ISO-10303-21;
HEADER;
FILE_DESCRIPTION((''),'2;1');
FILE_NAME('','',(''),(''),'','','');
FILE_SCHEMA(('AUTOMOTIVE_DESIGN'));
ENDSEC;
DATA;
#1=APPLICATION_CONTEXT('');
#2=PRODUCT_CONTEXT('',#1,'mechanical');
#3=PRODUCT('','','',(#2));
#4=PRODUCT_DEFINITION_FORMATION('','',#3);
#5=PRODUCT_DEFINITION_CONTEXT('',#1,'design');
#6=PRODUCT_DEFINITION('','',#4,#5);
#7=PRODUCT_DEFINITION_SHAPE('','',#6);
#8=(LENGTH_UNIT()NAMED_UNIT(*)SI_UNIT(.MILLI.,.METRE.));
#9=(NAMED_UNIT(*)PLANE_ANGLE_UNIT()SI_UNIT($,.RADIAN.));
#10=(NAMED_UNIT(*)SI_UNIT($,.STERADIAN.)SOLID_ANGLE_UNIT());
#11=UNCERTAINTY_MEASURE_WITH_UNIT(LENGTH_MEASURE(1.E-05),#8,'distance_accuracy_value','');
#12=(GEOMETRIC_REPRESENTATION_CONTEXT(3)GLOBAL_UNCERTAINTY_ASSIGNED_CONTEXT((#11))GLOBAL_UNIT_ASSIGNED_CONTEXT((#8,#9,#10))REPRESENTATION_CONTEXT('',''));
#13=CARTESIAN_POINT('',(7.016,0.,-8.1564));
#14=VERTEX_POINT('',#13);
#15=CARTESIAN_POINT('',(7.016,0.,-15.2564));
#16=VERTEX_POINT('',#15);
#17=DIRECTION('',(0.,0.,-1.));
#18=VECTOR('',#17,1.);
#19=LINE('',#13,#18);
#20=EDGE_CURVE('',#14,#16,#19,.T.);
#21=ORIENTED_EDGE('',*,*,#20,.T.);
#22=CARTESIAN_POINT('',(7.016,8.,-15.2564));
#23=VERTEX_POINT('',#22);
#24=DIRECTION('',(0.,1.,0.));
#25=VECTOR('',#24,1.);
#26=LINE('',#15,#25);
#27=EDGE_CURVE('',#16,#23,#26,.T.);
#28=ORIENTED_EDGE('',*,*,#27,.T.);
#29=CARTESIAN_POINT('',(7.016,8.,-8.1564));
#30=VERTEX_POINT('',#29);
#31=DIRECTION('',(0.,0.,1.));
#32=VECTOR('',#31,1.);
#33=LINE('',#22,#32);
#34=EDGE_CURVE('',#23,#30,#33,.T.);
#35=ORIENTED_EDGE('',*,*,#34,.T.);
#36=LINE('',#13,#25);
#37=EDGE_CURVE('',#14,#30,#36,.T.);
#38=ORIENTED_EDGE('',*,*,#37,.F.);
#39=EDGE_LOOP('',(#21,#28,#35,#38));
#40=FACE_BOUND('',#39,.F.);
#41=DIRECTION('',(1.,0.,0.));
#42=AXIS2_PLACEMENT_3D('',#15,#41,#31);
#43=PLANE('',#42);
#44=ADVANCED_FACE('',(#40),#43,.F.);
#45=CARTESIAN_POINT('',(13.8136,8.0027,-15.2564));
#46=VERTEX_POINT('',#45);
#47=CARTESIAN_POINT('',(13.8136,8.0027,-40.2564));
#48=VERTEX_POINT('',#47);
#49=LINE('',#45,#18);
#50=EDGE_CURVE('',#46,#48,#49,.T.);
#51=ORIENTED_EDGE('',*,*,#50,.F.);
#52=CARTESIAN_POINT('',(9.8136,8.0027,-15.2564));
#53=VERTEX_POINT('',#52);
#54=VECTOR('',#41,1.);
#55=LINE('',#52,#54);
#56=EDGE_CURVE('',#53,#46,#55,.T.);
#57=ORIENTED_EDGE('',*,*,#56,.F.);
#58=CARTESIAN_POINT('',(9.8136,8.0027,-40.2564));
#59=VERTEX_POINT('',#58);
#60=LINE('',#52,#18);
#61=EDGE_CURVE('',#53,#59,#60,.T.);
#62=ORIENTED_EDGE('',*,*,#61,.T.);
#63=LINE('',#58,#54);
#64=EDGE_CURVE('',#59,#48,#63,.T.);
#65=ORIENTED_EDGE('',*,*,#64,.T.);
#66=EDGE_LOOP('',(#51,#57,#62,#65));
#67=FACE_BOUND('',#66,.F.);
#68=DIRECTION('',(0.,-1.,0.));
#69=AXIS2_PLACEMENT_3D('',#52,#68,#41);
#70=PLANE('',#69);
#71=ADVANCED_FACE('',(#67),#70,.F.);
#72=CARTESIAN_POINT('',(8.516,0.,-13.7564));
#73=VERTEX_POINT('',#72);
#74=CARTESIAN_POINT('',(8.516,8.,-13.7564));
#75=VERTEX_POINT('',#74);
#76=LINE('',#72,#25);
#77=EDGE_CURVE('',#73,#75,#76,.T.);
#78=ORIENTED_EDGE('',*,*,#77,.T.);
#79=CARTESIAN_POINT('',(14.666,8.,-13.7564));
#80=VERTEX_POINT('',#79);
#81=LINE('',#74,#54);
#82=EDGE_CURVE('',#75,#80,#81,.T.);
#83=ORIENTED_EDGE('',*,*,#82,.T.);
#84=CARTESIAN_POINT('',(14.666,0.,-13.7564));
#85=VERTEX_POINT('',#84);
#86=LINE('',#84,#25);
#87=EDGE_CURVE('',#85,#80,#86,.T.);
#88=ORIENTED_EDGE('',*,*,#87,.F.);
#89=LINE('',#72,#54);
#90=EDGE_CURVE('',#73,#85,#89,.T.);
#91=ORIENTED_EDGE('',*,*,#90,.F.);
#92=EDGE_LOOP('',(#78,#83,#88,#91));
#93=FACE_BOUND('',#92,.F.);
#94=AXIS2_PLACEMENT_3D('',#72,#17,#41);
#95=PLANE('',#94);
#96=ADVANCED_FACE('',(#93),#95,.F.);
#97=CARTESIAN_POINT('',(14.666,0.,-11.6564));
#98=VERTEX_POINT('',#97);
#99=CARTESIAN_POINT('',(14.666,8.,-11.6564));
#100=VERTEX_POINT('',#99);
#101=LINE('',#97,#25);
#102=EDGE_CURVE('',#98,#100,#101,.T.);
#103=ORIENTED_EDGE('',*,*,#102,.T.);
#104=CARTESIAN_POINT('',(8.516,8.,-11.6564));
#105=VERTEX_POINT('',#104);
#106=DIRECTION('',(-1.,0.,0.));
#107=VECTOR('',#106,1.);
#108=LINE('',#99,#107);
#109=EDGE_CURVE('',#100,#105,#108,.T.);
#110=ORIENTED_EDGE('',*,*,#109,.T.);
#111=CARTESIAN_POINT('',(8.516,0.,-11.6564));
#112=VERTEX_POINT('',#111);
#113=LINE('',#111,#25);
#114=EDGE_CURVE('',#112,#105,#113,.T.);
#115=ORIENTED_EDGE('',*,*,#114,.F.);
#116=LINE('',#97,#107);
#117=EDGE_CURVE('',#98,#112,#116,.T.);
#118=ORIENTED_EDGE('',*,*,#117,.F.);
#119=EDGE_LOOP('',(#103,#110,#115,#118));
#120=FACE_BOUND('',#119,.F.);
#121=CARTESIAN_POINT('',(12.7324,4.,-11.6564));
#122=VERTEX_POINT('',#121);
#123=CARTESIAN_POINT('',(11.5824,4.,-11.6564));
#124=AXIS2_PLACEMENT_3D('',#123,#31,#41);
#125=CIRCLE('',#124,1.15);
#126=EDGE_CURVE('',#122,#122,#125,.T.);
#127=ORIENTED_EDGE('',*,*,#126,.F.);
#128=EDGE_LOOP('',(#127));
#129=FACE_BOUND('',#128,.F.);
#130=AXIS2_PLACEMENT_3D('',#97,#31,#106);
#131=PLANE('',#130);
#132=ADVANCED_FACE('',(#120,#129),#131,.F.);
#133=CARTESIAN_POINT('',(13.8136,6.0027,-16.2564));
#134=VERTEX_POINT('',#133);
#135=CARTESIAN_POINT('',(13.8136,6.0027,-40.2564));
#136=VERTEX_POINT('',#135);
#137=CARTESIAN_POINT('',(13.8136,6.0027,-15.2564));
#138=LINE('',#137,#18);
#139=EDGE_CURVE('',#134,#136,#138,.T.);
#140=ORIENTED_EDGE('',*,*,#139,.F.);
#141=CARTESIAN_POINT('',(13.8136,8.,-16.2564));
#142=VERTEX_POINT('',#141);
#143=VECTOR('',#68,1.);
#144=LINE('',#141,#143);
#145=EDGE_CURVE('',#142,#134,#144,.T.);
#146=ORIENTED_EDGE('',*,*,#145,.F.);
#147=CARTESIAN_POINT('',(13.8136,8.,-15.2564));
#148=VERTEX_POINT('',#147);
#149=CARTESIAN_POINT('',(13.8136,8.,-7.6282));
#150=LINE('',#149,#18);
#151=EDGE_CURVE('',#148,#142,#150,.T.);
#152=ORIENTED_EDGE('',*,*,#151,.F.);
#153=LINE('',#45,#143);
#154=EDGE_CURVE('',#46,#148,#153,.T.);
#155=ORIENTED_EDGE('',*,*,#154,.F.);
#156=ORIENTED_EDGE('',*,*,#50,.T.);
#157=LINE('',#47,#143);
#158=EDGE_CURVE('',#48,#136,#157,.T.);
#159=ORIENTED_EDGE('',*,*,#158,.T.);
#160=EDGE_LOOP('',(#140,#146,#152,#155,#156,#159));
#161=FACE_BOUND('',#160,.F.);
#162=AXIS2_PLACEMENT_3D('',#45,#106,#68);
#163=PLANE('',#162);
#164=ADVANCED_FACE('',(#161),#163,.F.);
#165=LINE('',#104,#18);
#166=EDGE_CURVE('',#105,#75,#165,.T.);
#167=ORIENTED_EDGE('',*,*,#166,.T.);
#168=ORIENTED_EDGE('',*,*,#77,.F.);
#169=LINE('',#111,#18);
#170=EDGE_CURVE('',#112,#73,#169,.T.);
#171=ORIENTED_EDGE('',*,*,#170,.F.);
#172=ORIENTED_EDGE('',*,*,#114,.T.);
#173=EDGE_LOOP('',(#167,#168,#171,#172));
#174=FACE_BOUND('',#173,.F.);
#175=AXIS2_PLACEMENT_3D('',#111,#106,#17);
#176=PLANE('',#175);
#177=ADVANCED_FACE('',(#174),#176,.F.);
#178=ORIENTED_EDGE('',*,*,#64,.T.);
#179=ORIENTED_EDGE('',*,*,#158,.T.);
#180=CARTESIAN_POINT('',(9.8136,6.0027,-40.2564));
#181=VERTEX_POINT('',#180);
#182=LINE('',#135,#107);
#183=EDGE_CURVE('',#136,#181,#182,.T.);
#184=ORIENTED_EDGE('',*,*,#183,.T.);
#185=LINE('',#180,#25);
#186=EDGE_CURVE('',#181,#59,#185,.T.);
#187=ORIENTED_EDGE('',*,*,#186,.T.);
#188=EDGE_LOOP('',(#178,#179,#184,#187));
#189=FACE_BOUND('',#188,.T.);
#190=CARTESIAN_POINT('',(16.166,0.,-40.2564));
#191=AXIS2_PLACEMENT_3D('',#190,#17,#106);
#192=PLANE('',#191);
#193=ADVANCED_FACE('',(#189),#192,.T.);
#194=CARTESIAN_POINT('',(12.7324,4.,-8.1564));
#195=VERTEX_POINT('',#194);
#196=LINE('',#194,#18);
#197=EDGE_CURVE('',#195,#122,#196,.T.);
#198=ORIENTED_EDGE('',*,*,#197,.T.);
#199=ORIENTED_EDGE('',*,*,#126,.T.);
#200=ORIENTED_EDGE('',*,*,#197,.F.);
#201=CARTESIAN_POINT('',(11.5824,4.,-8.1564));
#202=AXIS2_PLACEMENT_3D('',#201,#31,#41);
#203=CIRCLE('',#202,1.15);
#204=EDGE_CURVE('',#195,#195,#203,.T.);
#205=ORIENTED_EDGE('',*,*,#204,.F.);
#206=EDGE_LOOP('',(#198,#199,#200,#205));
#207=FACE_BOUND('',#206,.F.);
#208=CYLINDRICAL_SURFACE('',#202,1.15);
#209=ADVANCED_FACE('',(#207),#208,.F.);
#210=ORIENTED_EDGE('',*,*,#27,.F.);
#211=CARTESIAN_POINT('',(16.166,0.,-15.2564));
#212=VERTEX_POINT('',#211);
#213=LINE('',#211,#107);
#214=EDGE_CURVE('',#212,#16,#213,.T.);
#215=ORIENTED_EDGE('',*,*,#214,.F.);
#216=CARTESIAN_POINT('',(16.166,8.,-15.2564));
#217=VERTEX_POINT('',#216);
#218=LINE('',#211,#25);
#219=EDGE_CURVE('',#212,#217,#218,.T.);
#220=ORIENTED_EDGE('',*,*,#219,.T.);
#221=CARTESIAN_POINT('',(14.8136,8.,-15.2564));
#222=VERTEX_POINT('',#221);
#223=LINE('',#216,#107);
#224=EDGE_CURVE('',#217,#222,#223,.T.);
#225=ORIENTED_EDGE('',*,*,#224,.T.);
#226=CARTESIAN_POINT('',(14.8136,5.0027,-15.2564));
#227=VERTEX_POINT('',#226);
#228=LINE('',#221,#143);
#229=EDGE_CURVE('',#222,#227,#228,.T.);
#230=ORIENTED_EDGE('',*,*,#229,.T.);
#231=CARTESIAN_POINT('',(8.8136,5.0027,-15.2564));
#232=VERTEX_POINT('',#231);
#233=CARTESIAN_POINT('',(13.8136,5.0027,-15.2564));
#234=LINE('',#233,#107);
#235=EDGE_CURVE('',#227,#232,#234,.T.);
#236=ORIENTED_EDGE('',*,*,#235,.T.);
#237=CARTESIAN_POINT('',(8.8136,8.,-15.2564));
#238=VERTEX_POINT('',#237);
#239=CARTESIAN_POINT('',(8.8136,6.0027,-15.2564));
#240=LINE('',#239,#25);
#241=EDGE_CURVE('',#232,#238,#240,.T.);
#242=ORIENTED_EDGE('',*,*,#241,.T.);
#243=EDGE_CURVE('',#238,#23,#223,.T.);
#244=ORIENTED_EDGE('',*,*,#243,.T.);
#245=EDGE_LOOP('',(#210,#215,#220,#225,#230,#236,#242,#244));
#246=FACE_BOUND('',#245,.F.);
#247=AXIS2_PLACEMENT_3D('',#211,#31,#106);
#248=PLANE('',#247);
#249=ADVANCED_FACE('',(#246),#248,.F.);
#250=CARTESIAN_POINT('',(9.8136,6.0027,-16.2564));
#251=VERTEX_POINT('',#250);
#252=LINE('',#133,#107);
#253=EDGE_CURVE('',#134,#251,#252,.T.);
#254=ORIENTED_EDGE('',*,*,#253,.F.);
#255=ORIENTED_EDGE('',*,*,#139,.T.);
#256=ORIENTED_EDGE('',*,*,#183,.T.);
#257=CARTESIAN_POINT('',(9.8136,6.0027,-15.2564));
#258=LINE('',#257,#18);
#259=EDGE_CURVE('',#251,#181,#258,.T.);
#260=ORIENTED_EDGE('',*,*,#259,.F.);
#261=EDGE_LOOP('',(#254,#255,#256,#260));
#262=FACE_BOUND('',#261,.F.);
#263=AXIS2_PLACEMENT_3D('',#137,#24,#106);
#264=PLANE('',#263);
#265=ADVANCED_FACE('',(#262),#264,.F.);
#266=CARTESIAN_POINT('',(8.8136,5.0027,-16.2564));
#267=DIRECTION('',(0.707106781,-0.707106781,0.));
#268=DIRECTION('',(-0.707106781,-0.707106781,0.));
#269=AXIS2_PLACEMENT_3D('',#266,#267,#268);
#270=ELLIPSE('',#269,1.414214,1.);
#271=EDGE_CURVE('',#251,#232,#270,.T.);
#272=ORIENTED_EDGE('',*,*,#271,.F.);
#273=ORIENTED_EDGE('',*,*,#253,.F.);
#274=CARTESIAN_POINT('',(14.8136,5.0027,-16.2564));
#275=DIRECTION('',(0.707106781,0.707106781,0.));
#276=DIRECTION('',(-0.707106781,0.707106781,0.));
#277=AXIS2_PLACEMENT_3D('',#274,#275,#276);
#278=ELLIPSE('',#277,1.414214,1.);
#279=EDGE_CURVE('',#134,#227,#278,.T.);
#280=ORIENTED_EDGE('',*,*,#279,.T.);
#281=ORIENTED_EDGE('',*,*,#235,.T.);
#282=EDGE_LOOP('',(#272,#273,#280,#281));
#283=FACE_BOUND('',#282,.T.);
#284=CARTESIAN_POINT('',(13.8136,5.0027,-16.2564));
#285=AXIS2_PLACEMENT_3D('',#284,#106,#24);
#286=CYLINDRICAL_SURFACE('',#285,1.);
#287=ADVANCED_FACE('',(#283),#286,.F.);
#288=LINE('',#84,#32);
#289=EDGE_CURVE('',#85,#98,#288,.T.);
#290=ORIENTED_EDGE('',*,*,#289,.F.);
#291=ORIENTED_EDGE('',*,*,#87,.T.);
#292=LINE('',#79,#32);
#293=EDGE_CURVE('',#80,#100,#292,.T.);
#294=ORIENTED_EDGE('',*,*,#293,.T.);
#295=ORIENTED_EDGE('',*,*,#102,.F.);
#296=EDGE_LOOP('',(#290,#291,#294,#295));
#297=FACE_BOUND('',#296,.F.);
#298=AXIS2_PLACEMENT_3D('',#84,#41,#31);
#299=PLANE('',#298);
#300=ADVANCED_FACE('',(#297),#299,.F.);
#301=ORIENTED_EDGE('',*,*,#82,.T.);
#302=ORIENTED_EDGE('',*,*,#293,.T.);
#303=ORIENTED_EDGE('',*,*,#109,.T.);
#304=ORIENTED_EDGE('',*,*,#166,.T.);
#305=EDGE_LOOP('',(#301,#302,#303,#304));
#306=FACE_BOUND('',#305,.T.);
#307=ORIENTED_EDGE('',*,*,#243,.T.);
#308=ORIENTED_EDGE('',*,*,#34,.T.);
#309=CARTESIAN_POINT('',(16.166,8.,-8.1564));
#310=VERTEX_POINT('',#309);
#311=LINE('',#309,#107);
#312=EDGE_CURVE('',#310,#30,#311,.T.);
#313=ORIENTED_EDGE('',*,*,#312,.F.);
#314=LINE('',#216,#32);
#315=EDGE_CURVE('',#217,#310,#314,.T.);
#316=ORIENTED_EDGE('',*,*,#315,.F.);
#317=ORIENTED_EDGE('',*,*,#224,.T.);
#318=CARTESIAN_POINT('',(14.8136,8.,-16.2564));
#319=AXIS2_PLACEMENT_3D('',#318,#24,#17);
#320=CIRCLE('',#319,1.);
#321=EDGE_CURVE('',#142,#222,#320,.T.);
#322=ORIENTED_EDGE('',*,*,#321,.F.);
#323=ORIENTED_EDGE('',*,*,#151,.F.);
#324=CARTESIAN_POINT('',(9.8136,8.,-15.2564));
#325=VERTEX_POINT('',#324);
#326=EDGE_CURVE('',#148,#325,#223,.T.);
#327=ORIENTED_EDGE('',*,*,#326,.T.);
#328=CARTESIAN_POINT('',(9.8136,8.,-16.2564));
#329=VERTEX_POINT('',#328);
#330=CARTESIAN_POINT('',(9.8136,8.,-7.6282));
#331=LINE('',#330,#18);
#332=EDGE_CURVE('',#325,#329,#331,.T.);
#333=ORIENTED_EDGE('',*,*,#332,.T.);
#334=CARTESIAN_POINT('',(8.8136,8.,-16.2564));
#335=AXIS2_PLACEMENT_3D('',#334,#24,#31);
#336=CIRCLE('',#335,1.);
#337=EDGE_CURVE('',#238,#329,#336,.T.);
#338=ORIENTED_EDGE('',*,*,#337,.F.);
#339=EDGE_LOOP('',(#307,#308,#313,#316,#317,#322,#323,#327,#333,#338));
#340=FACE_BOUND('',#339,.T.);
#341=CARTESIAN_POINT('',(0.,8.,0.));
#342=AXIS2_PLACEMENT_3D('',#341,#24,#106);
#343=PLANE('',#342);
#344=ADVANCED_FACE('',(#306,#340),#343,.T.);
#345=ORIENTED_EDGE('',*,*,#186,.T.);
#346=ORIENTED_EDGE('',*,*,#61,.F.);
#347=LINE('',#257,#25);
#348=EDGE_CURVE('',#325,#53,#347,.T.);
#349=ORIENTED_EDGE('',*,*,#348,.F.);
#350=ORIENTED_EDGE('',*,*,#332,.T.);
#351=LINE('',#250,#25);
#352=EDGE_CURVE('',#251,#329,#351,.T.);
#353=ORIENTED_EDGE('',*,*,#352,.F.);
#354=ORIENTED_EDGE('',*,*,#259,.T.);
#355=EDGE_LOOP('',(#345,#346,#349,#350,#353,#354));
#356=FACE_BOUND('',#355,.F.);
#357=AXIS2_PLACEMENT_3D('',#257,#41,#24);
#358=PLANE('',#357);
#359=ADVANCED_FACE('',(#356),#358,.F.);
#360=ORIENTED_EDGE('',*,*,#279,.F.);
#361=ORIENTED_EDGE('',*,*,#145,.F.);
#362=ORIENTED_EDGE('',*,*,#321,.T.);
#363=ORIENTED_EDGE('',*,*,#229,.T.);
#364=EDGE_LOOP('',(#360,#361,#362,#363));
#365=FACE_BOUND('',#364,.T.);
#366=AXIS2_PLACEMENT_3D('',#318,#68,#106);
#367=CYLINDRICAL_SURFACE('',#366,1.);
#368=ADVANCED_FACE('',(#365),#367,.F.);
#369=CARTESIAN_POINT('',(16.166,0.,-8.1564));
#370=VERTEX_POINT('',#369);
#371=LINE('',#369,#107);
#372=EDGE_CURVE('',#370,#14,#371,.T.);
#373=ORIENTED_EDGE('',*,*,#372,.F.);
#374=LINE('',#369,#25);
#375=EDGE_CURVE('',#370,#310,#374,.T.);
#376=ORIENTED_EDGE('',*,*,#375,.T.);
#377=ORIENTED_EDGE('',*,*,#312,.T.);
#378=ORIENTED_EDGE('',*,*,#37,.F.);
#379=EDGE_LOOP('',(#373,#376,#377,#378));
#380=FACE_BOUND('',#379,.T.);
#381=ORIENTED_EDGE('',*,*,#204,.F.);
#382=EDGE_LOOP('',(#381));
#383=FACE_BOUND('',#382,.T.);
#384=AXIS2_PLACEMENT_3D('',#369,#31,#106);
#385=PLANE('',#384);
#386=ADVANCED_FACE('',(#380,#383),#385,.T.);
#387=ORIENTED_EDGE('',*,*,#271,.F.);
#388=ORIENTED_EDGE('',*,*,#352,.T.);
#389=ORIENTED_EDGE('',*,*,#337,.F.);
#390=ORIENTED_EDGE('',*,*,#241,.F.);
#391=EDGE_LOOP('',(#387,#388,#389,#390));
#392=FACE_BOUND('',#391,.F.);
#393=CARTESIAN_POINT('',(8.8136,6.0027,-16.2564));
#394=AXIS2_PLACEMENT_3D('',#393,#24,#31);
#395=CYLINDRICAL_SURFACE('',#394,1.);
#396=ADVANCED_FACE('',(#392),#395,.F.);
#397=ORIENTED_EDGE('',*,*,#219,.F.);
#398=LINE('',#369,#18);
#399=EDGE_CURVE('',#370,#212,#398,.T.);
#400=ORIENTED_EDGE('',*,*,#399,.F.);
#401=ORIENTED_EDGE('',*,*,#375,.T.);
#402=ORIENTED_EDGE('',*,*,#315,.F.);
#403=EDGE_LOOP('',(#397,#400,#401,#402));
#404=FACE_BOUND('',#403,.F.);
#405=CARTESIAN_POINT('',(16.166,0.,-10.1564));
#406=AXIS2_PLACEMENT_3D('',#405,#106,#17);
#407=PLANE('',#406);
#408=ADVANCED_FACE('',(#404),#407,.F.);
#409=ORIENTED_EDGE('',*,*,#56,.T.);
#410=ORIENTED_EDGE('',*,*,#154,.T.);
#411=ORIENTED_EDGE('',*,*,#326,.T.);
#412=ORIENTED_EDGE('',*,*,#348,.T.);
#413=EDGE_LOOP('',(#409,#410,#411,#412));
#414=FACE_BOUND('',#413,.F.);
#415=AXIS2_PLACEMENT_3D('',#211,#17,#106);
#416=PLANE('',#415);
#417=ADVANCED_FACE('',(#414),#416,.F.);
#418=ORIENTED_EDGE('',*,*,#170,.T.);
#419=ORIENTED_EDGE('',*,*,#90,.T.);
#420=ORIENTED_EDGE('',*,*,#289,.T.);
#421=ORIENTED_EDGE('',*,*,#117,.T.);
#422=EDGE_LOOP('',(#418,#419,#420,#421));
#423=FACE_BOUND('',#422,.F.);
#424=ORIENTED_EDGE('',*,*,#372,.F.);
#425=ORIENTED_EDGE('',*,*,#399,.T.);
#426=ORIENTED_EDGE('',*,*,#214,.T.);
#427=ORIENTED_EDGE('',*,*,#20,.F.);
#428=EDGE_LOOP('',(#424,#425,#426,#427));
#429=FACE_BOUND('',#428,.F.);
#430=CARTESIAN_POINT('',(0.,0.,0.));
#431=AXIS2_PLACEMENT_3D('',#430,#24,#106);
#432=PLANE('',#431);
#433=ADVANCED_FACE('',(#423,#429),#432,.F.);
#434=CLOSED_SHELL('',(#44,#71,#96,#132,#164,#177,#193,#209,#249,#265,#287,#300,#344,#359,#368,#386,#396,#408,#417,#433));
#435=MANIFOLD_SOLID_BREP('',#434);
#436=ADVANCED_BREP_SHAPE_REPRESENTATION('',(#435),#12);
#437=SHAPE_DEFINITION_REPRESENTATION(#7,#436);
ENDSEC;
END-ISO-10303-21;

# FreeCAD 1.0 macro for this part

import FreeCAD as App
import Part
import Sketcher

V = App.Vector
Q = App.Units.Quantity


def edges_at(feature, points):
    """Names of the edges that pass closest to the given points."""
    edges = feature.Shape.Edges
    near = lambda p: min(range(len(edges)), key=lambda i: edges[i].distToShape(Part.Vertex(*p))[0])
    return sorted({f"Edge{near(p) + 1}" for p in points})

doc = App.newDocument("Part")
params = doc.addObject("Spreadsheet::Sheet", "Params")
for row, (alias, value) in enumerate([
    ("sketch1_height", "2.1 mm"),
    ("sketch1_width", "6.15 mm"),
    ("sketch1_height2", "7.1 mm"),
    ("pad1_length", "8 mm"),
    ("sketch2_diameter", "2.3 mm"),
    ("pocket1_length", "4 mm"),
    ("sketch3_width", "4 mm"),
    ("sketch3_height", "2 mm"),
    ("pad2_length", "25 mm"),
    ("fillet_radius", "1 mm"),
], start=1):
    params.set(f"A{row}", alias)
    params.set(f"B{row}", "=" + value)
    params.setAlias(f"B{row}", alias)

body = doc.addObject("PartDesign::Body", "Body")

# Sketch on XZ plane
sketch1 = body.newObject("Sketcher::SketchObject", "Sketch")
sketch1.AttachmentSupport = (doc.getObject("XZ_Plane"), [""])
sketch1.MapMode = "FlatFace"
sketch1.addGeometry(Part.LineSegment(V(16.166, -8.1564, 0), V(16.166, -15.2564, 0)), False)
sketch1.addGeometry(Part.LineSegment(V(16.166, -15.2564, 0), V(7.016, -15.2564, 0)), False)
sketch1.addGeometry(Part.LineSegment(V(7.016, -15.2564, 0), V(7.016, -8.1564, 0)), False)
sketch1.addGeometry(Part.LineSegment(V(7.016, -8.1564, 0), V(16.166, -8.1564, 0)), False)
sketch1.addGeometry(Part.LineSegment(V(14.666, -13.7564, 0), V(14.666, -11.6564, 0)), False)
sketch1.addGeometry(Part.LineSegment(V(14.666, -11.6564, 0), V(8.516, -11.6564, 0)), False)
sketch1.addGeometry(Part.LineSegment(V(8.516, -11.6564, 0), V(8.516, -13.7564, 0)), False)
sketch1.addGeometry(Part.LineSegment(V(8.516, -13.7564, 0), V(14.666, -13.7564, 0)), False)
sketch1.addConstraint(Sketcher.Constraint("Coincident", 0, 2, 1, 1))
sketch1.addConstraint(Sketcher.Constraint("Coincident", 1, 2, 2, 1))
sketch1.addConstraint(Sketcher.Constraint("Coincident", 2, 2, 3, 1))
sketch1.addConstraint(Sketcher.Constraint("Coincident", 3, 2, 0, 1))
sketch1.addConstraint(Sketcher.Constraint("Coincident", 4, 2, 5, 1))
sketch1.addConstraint(Sketcher.Constraint("Coincident", 5, 2, 6, 1))
sketch1.addConstraint(Sketcher.Constraint("Coincident", 6, 2, 7, 1))
sketch1.addConstraint(Sketcher.Constraint("Coincident", 7, 2, 4, 1))
sketch1.addConstraint(Sketcher.Constraint("Vertical", 0))
sketch1.addConstraint(Sketcher.Constraint("Horizontal", 1))
sketch1.addConstraint(Sketcher.Constraint("Vertical", 2))
sketch1.addConstraint(Sketcher.Constraint("Horizontal", 3))
sketch1.addConstraint(Sketcher.Constraint("Vertical", 4))
sketch1.addConstraint(Sketcher.Constraint("Horizontal", 5))
sketch1.addConstraint(Sketcher.Constraint("Vertical", 6))
sketch1.addConstraint(Sketcher.Constraint("Horizontal", 7))
sketch1.addConstraint(Sketcher.Constraint("DistanceY", 4, 1, 4, 2, Q("2.1 mm")))
sketch1.addConstraint(Sketcher.Constraint("DistanceX", 5, 2, 5, 1, Q("6.15 mm")))
sketch1.addConstraint(Sketcher.Constraint("DistanceX", 4, 2, 3, 2, Q("1.5 mm")))
sketch1.addConstraint(Sketcher.Constraint("DistanceX", 2, 2, 5, 2, Q("1.5 mm")))
sketch1.addConstraint(Sketcher.Constraint("DistanceY", 1, 2, 6, 2, Q("1.5 mm")))
sketch1.addConstraint(Sketcher.Constraint("DistanceY", 0, 2, 0, 1, Q("7.1 mm")))
sketch1.addConstraint(Sketcher.Constraint("DistanceX", -1, 1, 0, 2, Q("16.166 mm")))
sketch1.addConstraint(Sketcher.Constraint("DistanceY", 0, 2, -1, 1, Q("15.2564 mm")))
sketch1.setExpression("Constraints[16]", "Params.sketch1_height")
sketch1.setExpression("Constraints[17]", "Params.sketch1_width")
sketch1.setExpression("Constraints[21]", "Params.sketch1_height2")
pad1 = body.newObject("PartDesign::Pad", "Pad")
pad1.Profile = sketch1
pad1.setExpression("Length", "Params.pad1_length")
pad1.Reversed = True

# Sketch on XY plane
sketch2 = body.newObject("Sketcher::SketchObject", "Sketch001")
sketch2.AttachmentSupport = (doc.getObject("XY_Plane"), [""])
sketch2.MapMode = "FlatFace"
sketch2.AttachmentOffset = App.Placement(V(0, 0, -8.1564), App.Rotation())
sketch2.addGeometry(Part.Circle(V(11.5824, 4, 0), V(0, 0, 1), 1.15), False)
sketch2.addConstraint(Sketcher.Constraint("Diameter", 0, Q("2.3 mm")))
sketch2.addConstraint(Sketcher.Constraint("DistanceY", -1, 1, 0, 3, Q("4 mm")))
sketch2.addConstraint(Sketcher.Constraint("DistanceX", -1, 1, 0, 3, Q("11.5824 mm")))
sketch2.setExpression("Constraints[0]", "Params.sketch2_diameter")
pocket1 = body.newObject("PartDesign::Pocket", "Pocket")
pocket1.Profile = sketch2
pocket1.setExpression("Length", "Params.pocket1_length")

# Sketch on XY plane
sketch3 = body.newObject("Sketcher::SketchObject", "Sketch002")
sketch3.AttachmentSupport = (doc.getObject("XY_Plane"), [""])
sketch3.MapMode = "FlatFace"
sketch3.AttachmentOffset = App.Placement(V(0, 0, -15.2564), App.Rotation())
sketch3.addGeometry(Part.LineSegment(V(13.8136, 8.0027, 0), V(13.8136, 6.0027, 0)), False)
sketch3.addGeometry(Part.LineSegment(V(13.8136, 6.0027, 0), V(9.8136, 6.0027, 0)), False)
sketch3.addGeometry(Part.LineSegment(V(9.8136, 6.0027, 0), V(9.8136, 8.0027, 0)), False)
sketch3.addGeometry(Part.LineSegment(V(9.8136, 8.0027, 0), V(13.8136, 8.0027, 0)), False)
sketch3.addConstraint(Sketcher.Constraint("Coincident", 0, 2, 1, 1))
sketch3.addConstraint(Sketcher.Constraint("Coincident", 1, 2, 2, 1))
sketch3.addConstraint(Sketcher.Constraint("Coincident", 2, 2, 3, 1))
sketch3.addConstraint(Sketcher.Constraint("Coincident", 3, 2, 0, 1))
sketch3.addConstraint(Sketcher.Constraint("Vertical", 0))
sketch3.addConstraint(Sketcher.Constraint("Horizontal", 1))
sketch3.addConstraint(Sketcher.Constraint("Vertical", 2))
sketch3.addConstraint(Sketcher.Constraint("Horizontal", 3))
sketch3.addConstraint(Sketcher.Constraint("DistanceX", 1, 2, 1, 1, Q("4 mm")))
sketch3.addConstraint(Sketcher.Constraint("DistanceY", 0, 2, 0, 1, Q("2 mm")))
sketch3.addConstraint(Sketcher.Constraint("DistanceX", -1, 1, 0, 2, Q("13.8136 mm")))
sketch3.addConstraint(Sketcher.Constraint("DistanceY", -1, 1, 0, 2, Q("6.0027 mm")))
sketch3.setExpression("Constraints[8]", "Params.sketch3_width")
sketch3.setExpression("Constraints[9]", "Params.sketch3_height")
pad2 = body.newObject("PartDesign::Pad", "Pad001")
pad2.Profile = sketch3
pad2.setExpression("Length", "Params.pad2_length")
pad2.Reversed = True
doc.recompute()

fillet = body.newObject("PartDesign::Fillet", "Fillet")
fillet.Base = (pad2, edges_at(pad2, [(11.814, 6.003, -15.256), (9.814, 7.001, -15.256), (13.814, 7.001, -15.256)]))
fillet.setExpression("Radius", "Params.fillet_radius")

doc.recompute()
